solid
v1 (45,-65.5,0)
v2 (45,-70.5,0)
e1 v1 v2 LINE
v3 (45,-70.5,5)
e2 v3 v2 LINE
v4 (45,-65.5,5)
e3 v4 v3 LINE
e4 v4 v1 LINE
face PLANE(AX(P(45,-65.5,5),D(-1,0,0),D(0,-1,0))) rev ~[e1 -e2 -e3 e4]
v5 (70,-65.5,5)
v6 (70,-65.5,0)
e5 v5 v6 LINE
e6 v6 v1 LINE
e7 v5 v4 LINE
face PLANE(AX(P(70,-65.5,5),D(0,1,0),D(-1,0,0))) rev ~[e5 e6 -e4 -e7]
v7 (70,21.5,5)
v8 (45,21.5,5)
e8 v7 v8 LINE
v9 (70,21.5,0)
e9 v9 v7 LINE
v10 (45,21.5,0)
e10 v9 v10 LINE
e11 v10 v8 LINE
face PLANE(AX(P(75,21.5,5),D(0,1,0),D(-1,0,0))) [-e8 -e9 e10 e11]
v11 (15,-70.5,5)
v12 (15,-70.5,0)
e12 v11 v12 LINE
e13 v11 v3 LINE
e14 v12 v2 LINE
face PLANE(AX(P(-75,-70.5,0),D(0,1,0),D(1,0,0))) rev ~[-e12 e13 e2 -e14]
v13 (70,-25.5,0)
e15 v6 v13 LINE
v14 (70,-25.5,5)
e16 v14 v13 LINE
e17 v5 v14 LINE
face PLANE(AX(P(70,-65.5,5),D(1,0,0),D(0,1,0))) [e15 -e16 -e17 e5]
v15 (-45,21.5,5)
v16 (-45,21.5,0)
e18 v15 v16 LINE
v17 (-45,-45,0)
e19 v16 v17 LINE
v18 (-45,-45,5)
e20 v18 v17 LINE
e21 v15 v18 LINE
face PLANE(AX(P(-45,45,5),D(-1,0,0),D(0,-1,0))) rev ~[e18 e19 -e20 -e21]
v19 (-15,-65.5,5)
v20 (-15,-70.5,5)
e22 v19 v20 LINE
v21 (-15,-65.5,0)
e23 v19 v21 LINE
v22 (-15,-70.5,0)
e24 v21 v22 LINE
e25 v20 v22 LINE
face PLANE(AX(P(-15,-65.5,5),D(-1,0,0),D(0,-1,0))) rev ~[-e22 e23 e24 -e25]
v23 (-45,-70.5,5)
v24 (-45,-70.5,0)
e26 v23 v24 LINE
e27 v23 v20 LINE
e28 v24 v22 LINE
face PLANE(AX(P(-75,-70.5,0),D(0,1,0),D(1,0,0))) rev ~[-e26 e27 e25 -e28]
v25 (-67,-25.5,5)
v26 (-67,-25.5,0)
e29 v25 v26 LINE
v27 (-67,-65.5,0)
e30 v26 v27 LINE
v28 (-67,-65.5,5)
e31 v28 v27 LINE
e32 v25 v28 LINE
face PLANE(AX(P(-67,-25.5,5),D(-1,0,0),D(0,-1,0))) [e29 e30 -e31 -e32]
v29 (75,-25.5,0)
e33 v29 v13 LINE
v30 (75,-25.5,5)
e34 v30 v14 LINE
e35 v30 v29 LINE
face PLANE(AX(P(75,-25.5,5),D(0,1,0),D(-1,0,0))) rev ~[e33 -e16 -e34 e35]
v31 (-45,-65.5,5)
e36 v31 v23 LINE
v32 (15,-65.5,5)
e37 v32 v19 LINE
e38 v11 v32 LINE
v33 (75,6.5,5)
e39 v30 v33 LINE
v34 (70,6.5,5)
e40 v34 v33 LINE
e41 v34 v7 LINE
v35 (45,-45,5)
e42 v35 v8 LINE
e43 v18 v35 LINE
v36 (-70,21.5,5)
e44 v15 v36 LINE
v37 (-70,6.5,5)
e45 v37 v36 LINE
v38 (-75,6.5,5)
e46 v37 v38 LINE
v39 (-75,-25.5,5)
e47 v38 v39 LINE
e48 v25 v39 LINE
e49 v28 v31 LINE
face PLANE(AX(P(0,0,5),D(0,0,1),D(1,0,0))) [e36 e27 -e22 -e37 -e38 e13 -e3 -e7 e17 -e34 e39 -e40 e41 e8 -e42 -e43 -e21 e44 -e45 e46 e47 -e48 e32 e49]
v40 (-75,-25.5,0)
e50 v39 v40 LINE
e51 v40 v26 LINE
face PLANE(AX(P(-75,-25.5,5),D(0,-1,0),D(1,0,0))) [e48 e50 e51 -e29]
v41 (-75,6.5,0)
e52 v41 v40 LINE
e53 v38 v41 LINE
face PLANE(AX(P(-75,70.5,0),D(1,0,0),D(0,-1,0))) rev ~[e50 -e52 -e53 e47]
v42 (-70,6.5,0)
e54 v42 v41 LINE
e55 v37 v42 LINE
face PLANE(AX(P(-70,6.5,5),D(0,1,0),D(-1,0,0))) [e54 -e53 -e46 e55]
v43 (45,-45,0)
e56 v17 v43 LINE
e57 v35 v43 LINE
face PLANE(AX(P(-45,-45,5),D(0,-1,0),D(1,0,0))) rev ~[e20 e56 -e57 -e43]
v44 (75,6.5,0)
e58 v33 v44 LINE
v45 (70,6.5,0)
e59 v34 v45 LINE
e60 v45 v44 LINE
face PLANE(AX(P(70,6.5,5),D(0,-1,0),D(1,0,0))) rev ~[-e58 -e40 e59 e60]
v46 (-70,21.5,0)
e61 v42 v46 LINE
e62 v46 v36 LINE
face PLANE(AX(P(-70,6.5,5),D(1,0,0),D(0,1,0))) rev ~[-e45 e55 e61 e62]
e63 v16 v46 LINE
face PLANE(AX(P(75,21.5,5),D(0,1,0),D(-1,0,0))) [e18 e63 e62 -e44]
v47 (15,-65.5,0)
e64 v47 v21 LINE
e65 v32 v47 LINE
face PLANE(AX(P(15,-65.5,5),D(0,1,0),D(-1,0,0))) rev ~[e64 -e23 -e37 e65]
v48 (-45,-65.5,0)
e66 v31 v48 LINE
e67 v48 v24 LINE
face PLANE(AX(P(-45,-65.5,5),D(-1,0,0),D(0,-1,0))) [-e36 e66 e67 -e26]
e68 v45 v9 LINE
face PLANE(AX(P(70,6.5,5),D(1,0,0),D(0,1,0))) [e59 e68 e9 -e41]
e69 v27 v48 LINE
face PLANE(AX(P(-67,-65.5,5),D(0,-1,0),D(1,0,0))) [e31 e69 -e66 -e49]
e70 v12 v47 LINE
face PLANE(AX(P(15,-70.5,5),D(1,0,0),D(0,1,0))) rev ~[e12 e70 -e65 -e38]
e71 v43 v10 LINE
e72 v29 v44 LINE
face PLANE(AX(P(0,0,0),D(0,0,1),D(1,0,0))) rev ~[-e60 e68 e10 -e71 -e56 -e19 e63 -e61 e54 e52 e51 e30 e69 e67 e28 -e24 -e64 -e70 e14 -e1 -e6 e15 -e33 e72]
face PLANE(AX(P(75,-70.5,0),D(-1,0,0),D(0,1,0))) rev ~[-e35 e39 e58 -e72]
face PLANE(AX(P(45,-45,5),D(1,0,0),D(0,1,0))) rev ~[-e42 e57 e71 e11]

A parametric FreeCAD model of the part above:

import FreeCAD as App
import Part
import Sketcher
from FreeCAD import Vector

doc = App.newDocument("Part")
body = doc.addObject("PartDesign::Body", "Body")

sketch1 = body.newObject("Sketcher::SketchObject", "Sketch")
sketch1.AttachmentSupport = (doc.getObject("XY_Plane"), [""])
sketch1.MapMode = "FlatFace"
sketch1.addGeometry([
    Part.LineSegment(Vector(-75, 70.5, 0), Vector(-75, -70.5, 0)),
    Part.LineSegment(Vector(-75, -70.5, 0), Vector(75, -70.5, 0)),
    Part.LineSegment(Vector(75, -70.5, 0), Vector(75, 70.5, 0)),
    Part.LineSegment(Vector(75, 70.5, 0), Vector(-75, 70.5, 0)),
], False)
sketch1.addConstraint([
    Sketcher.Constraint("Coincident", 0, 2, 1, 1),
    Sketcher.Constraint("Coincident", 1, 2, 2, 1),
    Sketcher.Constraint("Coincident", 2, 2, 3, 1),
    Sketcher.Constraint("Coincident", 3, 2, 0, 1),
    Sketcher.Constraint("Vertical", 0),
    Sketcher.Constraint("Horizontal", 1),
    Sketcher.Constraint("Vertical", 2),
    Sketcher.Constraint("Horizontal", 3),
    Sketcher.Constraint("Symmetric", 0, 2, 2, 2, -1, 1),
    Sketcher.Constraint("DistanceX", 1, 1, 1, 2, 150.0),
    Sketcher.Constraint("DistanceY", 0, 2, 0, 1, 141.0),
])
pad1 = body.newObject("PartDesign::Pad", "Pad")
pad1.Profile = sketch1
pad1.Length = 5

sketch2 = body.newObject("Sketcher::SketchObject", "Sketch001")
sketch2.AttachmentSupport = (doc.getObject("XY_Plane"), [""])
sketch2.MapMode = "FlatFace"
sketch2.AttachmentOffset = App.Placement(Vector(0, 0, 5), App.Rotation())
sketch2.addGeometry([
    Part.LineSegment(Vector(-75, -70.5, 0), Vector(-45, -70.5, 0)),
    Part.LineSegment(Vector(-45, -70.5, 0), Vector(-45, -65.5, 0)),
    Part.LineSegment(Vector(-45, -65.5, 0), Vector(-67, -65.5, 0)),
    Part.LineSegment(Vector(-67, -65.5, 0), Vector(-67, -25.5, 0)),
    Part.LineSegment(Vector(-67, -25.5, 0), Vector(-75, -25.5, 0)),
    Part.LineSegment(Vector(-75, -25.5, 0), Vector(-75, -70.5, 0)),
    Part.LineSegment(Vector(-15, -65.5, 0), Vector(-15, -70.5, 0)),
    Part.LineSegment(Vector(-15, -70.5, 0), Vector(15, -70.5, 0)),
    Part.LineSegment(Vector(15, -70.5, 0), Vector(15, -65.5, 0)),
    Part.LineSegment(Vector(15, -65.5, 0), Vector(-15, -65.5, 0)),
    Part.LineSegment(Vector(-75, 34.5, 0), Vector(-75, 6.5, 0)),
    Part.LineSegment(Vector(-75, 6.5, 0), Vector(-70, 6.5, 0)),
    Part.LineSegment(Vector(-70, 6.5, 0), Vector(-70, 34.5, 0)),
    Part.LineSegment(Vector(-70, 34.5, 0), Vector(-75, 34.5, 0)),
    Part.LineSegment(Vector(-75, 70.5, 0), Vector(-75, 65.5, 0)),
    Part.LineSegment(Vector(-75, 65.5, 0), Vector(-45, 65.5, 0)),
    Part.LineSegment(Vector(-45, 65.5, 0), Vector(-45, 70.5, 0)),
    Part.LineSegment(Vector(-45, 70.5, 0), Vector(-75, 70.5, 0)),
    Part.LineSegment(Vector(45, -65.5, 0), Vector(45, -70.5, 0)),
    Part.LineSegment(Vector(45, -70.5, 0), Vector(75, -70.5, 0)),
    Part.LineSegment(Vector(75, -70.5, 0), Vector(75, -25.5, 0)),
    Part.LineSegment(Vector(75, -25.5, 0), Vector(70, -25.5, 0)),
    Part.LineSegment(Vector(70, -25.5, 0), Vector(70, -65.5, 0)),
    Part.LineSegment(Vector(70, -65.5, 0), Vector(45, -65.5, 0)),
    Part.LineSegment(Vector(15, 70.5, 0), Vector(-15, 70.5, 0)),
    Part.LineSegment(Vector(-15, 70.5, 0), Vector(-15, 65.5, 0)),
    Part.LineSegment(Vector(-15, 65.5, 0), Vector(15, 65.5, 0)),
    Part.LineSegment(Vector(15, 65.5, 0), Vector(15, 70.5, 0)),
    Part.LineSegment(Vector(70, 34.5, 0), Vector(70, 6.5, 0)),
    Part.LineSegment(Vector(70, 6.5, 0), Vector(75, 6.5, 0)),
    Part.LineSegment(Vector(75, 6.5, 0), Vector(75, 34.5, 0)),
    Part.LineSegment(Vector(75, 34.5, 0), Vector(70, 34.5, 0)),
    Part.LineSegment(Vector(45, 65.5, 0), Vector(75, 65.5, 0)),
    Part.LineSegment(Vector(75, 65.5, 0), Vector(75, 70.5, 0)),
    Part.LineSegment(Vector(75, 70.5, 0), Vector(45, 70.5, 0)),
    Part.LineSegment(Vector(45, 70.5, 0), Vector(45, 65.5, 0)),
], False)
sketch2.addConstraint([
    Sketcher.Constraint("Coincident", 0, 2, 1, 1),
    Sketcher.Constraint("Coincident", 1, 2, 2, 1),
    Sketcher.Constraint("Coincident", 2, 2, 3, 1),
    Sketcher.Constraint("Coincident", 3, 2, 4, 1),
    Sketcher.Constraint("Coincident", 4, 2, 5, 1),
    Sketcher.Constraint("Coincident", 5, 2, 0, 1),
    Sketcher.Constraint("Coincident", 6, 2, 7, 1),
    Sketcher.Constraint("Coincident", 7, 2, 8, 1),
    Sketcher.Constraint("Coincident", 8, 2, 9, 1),
    Sketcher.Constraint("Coincident", 9, 2, 6, 1),
    Sketcher.Constraint("Coincident", 10, 2, 11, 1),
    Sketcher.Constraint("Coincident", 11, 2, 12, 1),
    Sketcher.Constraint("Coincident", 12, 2, 13, 1),
    Sketcher.Constraint("Coincident", 13, 2, 10, 1),
    Sketcher.Constraint("Coincident", 14, 2, 15, 1),
    Sketcher.Constraint("Coincident", 15, 2, 16, 1),
    Sketcher.Constraint("Coincident", 16, 2, 17, 1),
    Sketcher.Constraint("Coincident", 17, 2, 14, 1),
    Sketcher.Constraint("Coincident", 18, 2, 19, 1),
    Sketcher.Constraint("Coincident", 19, 2, 20, 1),
    Sketcher.Constraint("Coincident", 20, 2, 21, 1),
    Sketcher.Constraint("Coincident", 21, 2, 22, 1),
    Sketcher.Constraint("Coincident", 22, 2, 23, 1),
    Sketcher.Constraint("Coincident", 23, 2, 18, 1),
    Sketcher.Constraint("Coincident", 24, 2, 25, 1),
    Sketcher.Constraint("Coincident", 25, 2, 26, 1),
    Sketcher.Constraint("Coincident", 26, 2, 27, 1),
    Sketcher.Constraint("Coincident", 27, 2, 24, 1),
    Sketcher.Constraint("Coincident", 28, 2, 29, 1),
    Sketcher.Constraint("Coincident", 29, 2, 30, 1),
    Sketcher.Constraint("Coincident", 30, 2, 31, 1),
    Sketcher.Constraint("Coincident", 31, 2, 28, 1),
    Sketcher.Constraint("Coincident", 32, 2, 33, 1),
    Sketcher.Constraint("Coincident", 33, 2, 34, 1),
    Sketcher.Constraint("Coincident", 34, 2, 35, 1),
    Sketcher.Constraint("Coincident", 35, 2, 32, 1),
    Sketcher.Constraint("Horizontal", 0),
    Sketcher.Constraint("Vertical", 1),
    Sketcher.Constraint("Horizontal", 2),
    Sketcher.Constraint("Vertical", 3),
    Sketcher.Constraint("Horizontal", 4),
    Sketcher.Constraint("Vertical", 5),
    Sketcher.Constraint("Vertical", 6),
    Sketcher.Constraint("Horizontal", 7),
    Sketcher.Constraint("Vertical", 8),
    Sketcher.Constraint("Horizontal", 9),
    Sketcher.Constraint("Vertical", 10),
    Sketcher.Constraint("Horizontal", 11),
    Sketcher.Constraint("Vertical", 12),
    Sketcher.Constraint("Horizontal", 13),
    Sketcher.Constraint("Vertical", 14),
    Sketcher.Constraint("Horizontal", 15),
    Sketcher.Constraint("Vertical", 16),
    Sketcher.Constraint("Horizontal", 17),
    Sketcher.Constraint("Vertical", 18),
    Sketcher.Constraint("Horizontal", 19),
    Sketcher.Constraint("Vertical", 20),
    Sketcher.Constraint("Horizontal", 21),
    Sketcher.Constraint("Vertical", 22),
    Sketcher.Constraint("Horizontal", 23),
    Sketcher.Constraint("Horizontal", 24),
    Sketcher.Constraint("Vertical", 25),
    Sketcher.Constraint("Horizontal", 26),
    Sketcher.Constraint("Vertical", 27),
    Sketcher.Constraint("Vertical", 28),
    Sketcher.Constraint("Horizontal", 29),
    Sketcher.Constraint("Vertical", 30),
    Sketcher.Constraint("Horizontal", 31),
    Sketcher.Constraint("Horizontal", 32),
    Sketcher.Constraint("Vertical", 33),
    Sketcher.Constraint("Horizontal", 34),
    Sketcher.Constraint("Vertical", 35),
    Sketcher.Constraint("Symmetric", 16, 2, 18, 2, -1, 1),
    Sketcher.Constraint("Symmetric", 7, 2, 24, 2, -1, 1),
    Sketcher.Constraint("Symmetric", 9, 2, 26, 2, -1, 1),
    Sketcher.Constraint("Symmetric", 5, 2, 33, 2, -1, 1),
    Sketcher.Constraint("Symmetric", 1, 2, 35, 2, -1, 1),
    Sketcher.Constraint("Symmetric", 0, 2, 18, 2, -2),
    Sketcher.Constraint("Symmetric", 4, 2, 20, 2, -2),
    Sketcher.Constraint("Symmetric", 11, 2, 28, 2, -2),
    Sketcher.Constraint("Symmetric", 13, 2, 30, 2, -2),
    Sketcher.Constraint("Symmetric", 14, 2, 32, 2, -2),
    Sketcher.Constraint("Horizontal", 5, 2, 6, 2),
    Sketcher.Constraint("Horizontal", 2, 2, 8, 2),
    Sketcher.Constraint("Horizontal", 9, 2, 22, 2),
    Sketcher.Constraint("Vertical", 5, 2, 10, 2),
    Sketcher.Constraint("Vertical", 9, 2, 24, 2),
    Sketcher.Constraint("Vertical", 22, 2, 28, 2),
    Sketcher.Constraint("Equal", 0, 7),
    Sketcher.Constraint("Equal", 31, 1),
    Sketcher.Constraint("DistanceX", 0, 1, 0, 2, 30.0),
    Sketcher.Constraint("DistanceX", 11, 1, 11, 2, 5.0),
    Sketcher.Constraint("DistanceX", 0, 2, 6, 2, 30.0),
    Sketcher.Constraint("DistanceX", 2, 2, 2, 1, 22.0),
    Sketcher.Constraint("DistanceY", 3, 1, 3, 2, 40.0),
    Sketcher.Constraint("DistanceY", 10, 2, 10, 1, 28.0),
    Sketcher.Constraint("DistanceY", 4, 2, 10, 2, 32.0),
    Sketcher.Constraint("DistanceY", 13, 2, 14, 2, 31.0),
])
pocket1 = body.newObject("PartDesign::Pocket", "Pocket")
pocket1.Profile = sketch2
pocket1.Length = 8

sketch3 = body.newObject("Sketcher::SketchObject", "Sketch002")
sketch3.AttachmentSupport = (doc.getObject("XY_Plane"), [""])
sketch3.MapMode = "FlatFace"
sketch3.AttachmentOffset = App.Placement(Vector(0, 0, 5), App.Rotation())
sketch3.addGeometry([
    Part.LineSegment(Vector(-45, 45, 0), Vector(-45, -45, 0)),
    Part.LineSegment(Vector(-45, -45, 0), Vector(45, -45, 0)),
    Part.LineSegment(Vector(45, -45, 0), Vector(45, 45, 0)),
    Part.LineSegment(Vector(45, 45, 0), Vector(-45, 45, 0)),
], False)
sketch3.addConstraint([
    Sketcher.Constraint("Coincident", 0, 2, 1, 1),
    Sketcher.Constraint("Coincident", 1, 2, 2, 1),
    Sketcher.Constraint("Coincident", 2, 2, 3, 1),
    Sketcher.Constraint("Coincident", 3, 2, 0, 1),
    Sketcher.Constraint("Vertical", 0),
    Sketcher.Constraint("Horizontal", 1),
    Sketcher.Constraint("Vertical", 2),
    Sketcher.Constraint("Horizontal", 3),
    Sketcher.Constraint("Symmetric", 0, 2, 2, 2, -1, 1),
    Sketcher.Constraint("Equal", 3, 0),
    Sketcher.Constraint("DistanceX", 1, 1, 1, 2, 90.0),
])
pocket2 = body.newObject("PartDesign::Pocket", "Pocket001")
pocket2.Profile = sketch3
pocket2.Length = 8

sketch4 = body.newObject("Sketcher::SketchObject", "Sketch003")
sketch4.AttachmentSupport = (doc.getObject("XY_Plane"), [""])
sketch4.MapMode = "FlatFace"
sketch4.AttachmentOffset = App.Placement(Vector(0, 0, 5), App.Rotation())
sketch4.addGeometry([
    Part.LineSegment(Vector(75, 21.5, 0), Vector(75, 76.2896, 0)),
    Part.LineSegment(Vector(75, 76.2896, 0), Vector(-125.9097, 76.2896, 0)),
    Part.LineSegment(Vector(-125.9097, 76.2896, 0), Vector(-125.9097, 21.5, 0)),
    Part.LineSegment(Vector(-125.9097, 21.5, 0), Vector(75, 21.5, 0)),
], False)
sketch4.addConstraint([
    Sketcher.Constraint("Coincident", 0, 2, 1, 1),
    Sketcher.Constraint("Coincident", 1, 2, 2, 1),
    Sketcher.Constraint("Coincident", 2, 2, 3, 1),
    Sketcher.Constraint("Coincident", 3, 2, 0, 1),
    Sketcher.Constraint("Vertical", 0),
    Sketcher.Constraint("Horizontal", 1),
    Sketcher.Constraint("Vertical", 2),
    Sketcher.Constraint("Horizontal", 3),
    Sketcher.Constraint("DistanceX", -1, 1, 0, 2, 75.0),
    Sketcher.Constraint("DistanceY", -1, 1, 2, 2, 21.5),
    Sketcher.Constraint("DistanceX", 1, 2, 1, 1, 200.9097),
    Sketcher.Constraint("DistanceY", 0, 1, 0, 2, 54.7896),
])
pocket3 = body.newObject("PartDesign::Pocket", "Pocket002")
pocket3.Profile = sketch4
pocket3.Length = 15

doc.recompute()
